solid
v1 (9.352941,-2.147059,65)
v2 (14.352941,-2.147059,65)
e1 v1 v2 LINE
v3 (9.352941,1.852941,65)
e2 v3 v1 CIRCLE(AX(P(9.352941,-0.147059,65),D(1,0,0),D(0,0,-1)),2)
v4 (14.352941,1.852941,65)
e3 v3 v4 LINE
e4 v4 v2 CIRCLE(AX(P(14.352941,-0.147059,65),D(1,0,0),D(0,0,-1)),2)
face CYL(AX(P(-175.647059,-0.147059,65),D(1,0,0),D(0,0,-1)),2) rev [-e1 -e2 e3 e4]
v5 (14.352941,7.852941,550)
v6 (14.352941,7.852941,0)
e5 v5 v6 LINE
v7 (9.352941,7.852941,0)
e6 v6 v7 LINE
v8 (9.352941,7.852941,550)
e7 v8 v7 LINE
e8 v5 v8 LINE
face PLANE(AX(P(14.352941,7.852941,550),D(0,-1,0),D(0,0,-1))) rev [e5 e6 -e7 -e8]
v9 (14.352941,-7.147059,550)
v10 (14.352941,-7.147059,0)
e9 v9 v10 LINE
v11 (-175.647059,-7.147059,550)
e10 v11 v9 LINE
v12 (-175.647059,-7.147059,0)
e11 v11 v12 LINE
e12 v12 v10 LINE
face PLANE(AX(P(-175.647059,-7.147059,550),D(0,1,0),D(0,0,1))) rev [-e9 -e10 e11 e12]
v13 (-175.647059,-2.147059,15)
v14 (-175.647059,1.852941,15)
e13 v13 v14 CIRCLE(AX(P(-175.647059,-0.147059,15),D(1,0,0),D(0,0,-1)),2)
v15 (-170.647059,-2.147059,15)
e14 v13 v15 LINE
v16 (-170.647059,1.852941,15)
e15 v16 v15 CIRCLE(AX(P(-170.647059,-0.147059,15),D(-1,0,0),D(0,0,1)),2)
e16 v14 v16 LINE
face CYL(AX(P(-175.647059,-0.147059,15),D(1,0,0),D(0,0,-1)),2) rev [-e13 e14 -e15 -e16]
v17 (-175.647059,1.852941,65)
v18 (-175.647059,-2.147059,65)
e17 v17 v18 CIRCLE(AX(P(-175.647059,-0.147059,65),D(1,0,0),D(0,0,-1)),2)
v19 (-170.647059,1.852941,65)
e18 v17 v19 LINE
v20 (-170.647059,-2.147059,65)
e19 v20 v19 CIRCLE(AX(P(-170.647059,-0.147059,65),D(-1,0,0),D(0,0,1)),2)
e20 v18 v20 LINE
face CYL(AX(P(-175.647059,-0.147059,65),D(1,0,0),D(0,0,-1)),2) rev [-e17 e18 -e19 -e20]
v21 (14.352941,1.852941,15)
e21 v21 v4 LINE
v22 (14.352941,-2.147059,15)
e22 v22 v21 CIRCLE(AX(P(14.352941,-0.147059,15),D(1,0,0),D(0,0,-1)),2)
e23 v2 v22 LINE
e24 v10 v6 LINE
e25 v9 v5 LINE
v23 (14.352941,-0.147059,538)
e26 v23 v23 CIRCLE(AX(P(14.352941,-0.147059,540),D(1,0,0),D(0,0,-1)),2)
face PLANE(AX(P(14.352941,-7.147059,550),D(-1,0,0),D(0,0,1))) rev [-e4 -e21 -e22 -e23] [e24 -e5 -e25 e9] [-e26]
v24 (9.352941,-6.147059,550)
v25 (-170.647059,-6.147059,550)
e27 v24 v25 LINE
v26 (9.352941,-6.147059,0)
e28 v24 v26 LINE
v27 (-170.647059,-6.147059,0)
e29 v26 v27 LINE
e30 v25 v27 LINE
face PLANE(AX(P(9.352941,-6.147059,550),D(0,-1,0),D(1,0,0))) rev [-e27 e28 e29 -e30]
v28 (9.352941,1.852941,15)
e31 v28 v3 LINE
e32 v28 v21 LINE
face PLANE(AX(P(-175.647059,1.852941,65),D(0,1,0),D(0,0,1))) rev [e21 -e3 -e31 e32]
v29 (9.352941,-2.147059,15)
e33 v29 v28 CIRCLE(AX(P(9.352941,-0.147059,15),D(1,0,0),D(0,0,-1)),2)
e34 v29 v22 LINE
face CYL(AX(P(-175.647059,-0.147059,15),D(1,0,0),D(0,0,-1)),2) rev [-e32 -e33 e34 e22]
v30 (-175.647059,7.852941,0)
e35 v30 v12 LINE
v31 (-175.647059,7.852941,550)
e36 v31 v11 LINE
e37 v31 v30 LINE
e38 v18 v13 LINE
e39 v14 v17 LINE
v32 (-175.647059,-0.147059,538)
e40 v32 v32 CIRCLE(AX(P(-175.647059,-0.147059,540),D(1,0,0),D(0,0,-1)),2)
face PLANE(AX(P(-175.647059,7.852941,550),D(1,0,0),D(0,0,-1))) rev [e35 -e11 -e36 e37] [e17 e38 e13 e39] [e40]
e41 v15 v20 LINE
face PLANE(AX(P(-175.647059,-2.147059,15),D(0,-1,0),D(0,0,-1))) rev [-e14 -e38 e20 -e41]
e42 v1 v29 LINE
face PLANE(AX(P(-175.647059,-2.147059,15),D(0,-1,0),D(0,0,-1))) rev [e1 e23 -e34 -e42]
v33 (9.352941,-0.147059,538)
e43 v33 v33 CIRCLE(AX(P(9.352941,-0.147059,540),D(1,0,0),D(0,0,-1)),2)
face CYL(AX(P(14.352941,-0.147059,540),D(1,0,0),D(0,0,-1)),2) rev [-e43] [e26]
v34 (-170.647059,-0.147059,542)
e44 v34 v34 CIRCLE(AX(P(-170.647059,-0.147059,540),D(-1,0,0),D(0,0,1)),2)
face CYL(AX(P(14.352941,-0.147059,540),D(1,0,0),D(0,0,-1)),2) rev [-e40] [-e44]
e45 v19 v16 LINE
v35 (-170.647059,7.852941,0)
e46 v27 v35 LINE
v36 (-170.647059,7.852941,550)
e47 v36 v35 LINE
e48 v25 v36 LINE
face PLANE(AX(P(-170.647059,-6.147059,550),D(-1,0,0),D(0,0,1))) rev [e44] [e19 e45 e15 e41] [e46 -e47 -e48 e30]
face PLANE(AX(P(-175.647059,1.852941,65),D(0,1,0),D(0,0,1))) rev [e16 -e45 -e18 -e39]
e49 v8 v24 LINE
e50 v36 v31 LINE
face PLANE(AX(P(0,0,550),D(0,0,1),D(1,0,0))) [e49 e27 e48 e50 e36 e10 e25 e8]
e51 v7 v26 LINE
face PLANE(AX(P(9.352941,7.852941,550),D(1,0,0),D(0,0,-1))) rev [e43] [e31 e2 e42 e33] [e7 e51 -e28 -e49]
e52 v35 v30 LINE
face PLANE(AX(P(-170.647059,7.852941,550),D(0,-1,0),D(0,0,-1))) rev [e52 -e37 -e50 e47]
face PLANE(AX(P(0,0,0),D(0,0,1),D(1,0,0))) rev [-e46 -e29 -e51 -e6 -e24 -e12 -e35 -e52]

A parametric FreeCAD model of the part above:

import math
import FreeCAD as App
import Part
import Sketcher

V = App.Vector

doc = App.newDocument("Part")
body = doc.addObject("PartDesign::Body", "Body")

# Sketch on XY plane
sketch1 = body.newObject("Sketcher::SketchObject", "Sketch")
sketch1.AttachmentSupport = (doc.getObject("XY_Plane"), [""])
sketch1.MapMode = "FlatFace"
sketch1.addGeometry([
    Part.LineSegment(V(-176, 8, 0), V(-176, -7, 0)),  # 0
    Part.LineSegment(V(-176, -7, 0), V(14, -7, 0)),  # 1
    Part.LineSegment(V(14, -7, 0), V(14, 8, 0)),  # 2
    Part.LineSegment(V(14, 8, 0), V(9, 8, 0)),  # 3
    Part.LineSegment(V(9, 8, 0), V(9, -6, 0)),  # 4
    Part.LineSegment(V(9, -6, 0), V(-171, -6, 0)),  # 5
    Part.LineSegment(V(-171, -6, 0), V(-171, 8, 0)),  # 6
    Part.LineSegment(V(-171, 8, 0), V(-176, 8, 0)),  # 7
], False)
sketch1.addConstraint([
    Sketcher.Constraint("Coincident", 0, 2, 1, 1),
    Sketcher.Constraint("Coincident", 1, 2, 2, 1),
    Sketcher.Constraint("Coincident", 2, 2, 3, 1),
    Sketcher.Constraint("Coincident", 3, 2, 4, 1),
    Sketcher.Constraint("Coincident", 4, 2, 5, 1),
    Sketcher.Constraint("Coincident", 5, 2, 6, 1),
    Sketcher.Constraint("Coincident", 6, 2, 7, 1),
    Sketcher.Constraint("Coincident", 7, 2, 0, 1),
    Sketcher.Constraint("Vertical", 0),
    Sketcher.Constraint("Horizontal", 1),
    Sketcher.Constraint("Vertical", 2),
    Sketcher.Constraint("Horizontal", 3),
    Sketcher.Constraint("Vertical", 4),
    Sketcher.Constraint("Horizontal", 5),
    Sketcher.Constraint("Vertical", 6),
    Sketcher.Constraint("Horizontal", 7),
    Sketcher.Constraint("Horizontal", 3, 2, 6, 2),
    Sketcher.Constraint("Equal", 3, 7),
    Sketcher.Constraint("DistanceX", 1, 1, 1, 2, 190.0),
    Sketcher.Constraint("DistanceX", 3, 2, 3, 1, 5.0),
    Sketcher.Constraint("DistanceY", 0, 2, 0, 1, 15.0),
    Sketcher.Constraint("DistanceY", 4, 2, 4, 1, 14.0),
    Sketcher.Constraint("DistanceX", 0, 2, -1, 1, 175.647059),
    Sketcher.Constraint("DistanceY", 0, 2, -1, 1, 7.147059),
])
pad1 = body.newObject("PartDesign::Pad", "Pad")
pad1.Profile = sketch1
pad1.Length = 550

# Sketch on YZ plane
sketch2 = body.newObject("Sketcher::SketchObject", "Sketch001")
sketch2.AttachmentSupport = (doc.getObject("YZ_Plane"), [""])
sketch2.MapMode = "FlatFace"
sketch2.AttachmentOffset = App.Placement(V(0, 0, 14.352941), App.Rotation())
sketch2.addGeometry(Part.Circle(V(-0.1, 540, 0), V(0, 0, 1), 2), False)
sketch2.addConstraint([
    Sketcher.Constraint("Diameter", 0, 4.0),
    Sketcher.Constraint("DistanceY", -1, 1, 0, 3, 540.0),
    Sketcher.Constraint("DistanceX", 0, 3, -1, 1, 0.147059),
])
doc.recompute()
hole = body.newObject("PartDesign::Hole", "Hole")
hole.Profile = sketch2
hole.ThreadType = "None"
hole.Diameter = 4
hole.DepthType = "ThroughAll"

# Sketch on YZ plane
sketch3 = body.newObject("Sketcher::SketchObject", "Sketch002")
sketch3.AttachmentSupport = (doc.getObject("YZ_Plane"), [""])
sketch3.MapMode = "FlatFace"
sketch3.AttachmentOffset = App.Placement(V(0, 0, 14.352941), App.Rotation())
sketch3.addGeometry([
    Part.LineSegment(V(1.9, 15, 0), V(1.9, 65, 0)),
    Part.ArcOfCircle(Part.Circle(V(-0.1, 65, 0), V(0, 0, 1), 2), math.radians(0), math.radians(180)),
    Part.LineSegment(V(-2.1, 65, 0), V(-2.1, 15, 0)),
    Part.ArcOfCircle(Part.Circle(V(-0.1, 15, 0), V(0, 0, 1), 2), math.radians(180), math.radians(360)),
], False)
sketch3.addConstraint([
    Sketcher.Constraint("Tangent", 0, 2, 1, 1),
    Sketcher.Constraint("Tangent", 1, 2, 2, 1),
    Sketcher.Constraint("Tangent", 2, 2, 3, 1),
    Sketcher.Constraint("Tangent", 3, 2, 0, 1),
    Sketcher.Constraint("Vertical", 0),
    Sketcher.Constraint("Vertical", 2),
    Sketcher.Constraint("Radius", 1, 2.0),
    Sketcher.Constraint("DistanceY", 0, 1, 0, 2, 50.0),
    Sketcher.Constraint("DistanceY", -1, 1, 1, 3, 65.0),
    Sketcher.Constraint("DistanceX", 1, 3, -1, 1, 0.147059),
])
pocket1 = body.newObject("PartDesign::Pocket", "Pocket")
pocket1.Profile = sketch3
pocket1.Type = "ThroughAll"

doc.recompute()
